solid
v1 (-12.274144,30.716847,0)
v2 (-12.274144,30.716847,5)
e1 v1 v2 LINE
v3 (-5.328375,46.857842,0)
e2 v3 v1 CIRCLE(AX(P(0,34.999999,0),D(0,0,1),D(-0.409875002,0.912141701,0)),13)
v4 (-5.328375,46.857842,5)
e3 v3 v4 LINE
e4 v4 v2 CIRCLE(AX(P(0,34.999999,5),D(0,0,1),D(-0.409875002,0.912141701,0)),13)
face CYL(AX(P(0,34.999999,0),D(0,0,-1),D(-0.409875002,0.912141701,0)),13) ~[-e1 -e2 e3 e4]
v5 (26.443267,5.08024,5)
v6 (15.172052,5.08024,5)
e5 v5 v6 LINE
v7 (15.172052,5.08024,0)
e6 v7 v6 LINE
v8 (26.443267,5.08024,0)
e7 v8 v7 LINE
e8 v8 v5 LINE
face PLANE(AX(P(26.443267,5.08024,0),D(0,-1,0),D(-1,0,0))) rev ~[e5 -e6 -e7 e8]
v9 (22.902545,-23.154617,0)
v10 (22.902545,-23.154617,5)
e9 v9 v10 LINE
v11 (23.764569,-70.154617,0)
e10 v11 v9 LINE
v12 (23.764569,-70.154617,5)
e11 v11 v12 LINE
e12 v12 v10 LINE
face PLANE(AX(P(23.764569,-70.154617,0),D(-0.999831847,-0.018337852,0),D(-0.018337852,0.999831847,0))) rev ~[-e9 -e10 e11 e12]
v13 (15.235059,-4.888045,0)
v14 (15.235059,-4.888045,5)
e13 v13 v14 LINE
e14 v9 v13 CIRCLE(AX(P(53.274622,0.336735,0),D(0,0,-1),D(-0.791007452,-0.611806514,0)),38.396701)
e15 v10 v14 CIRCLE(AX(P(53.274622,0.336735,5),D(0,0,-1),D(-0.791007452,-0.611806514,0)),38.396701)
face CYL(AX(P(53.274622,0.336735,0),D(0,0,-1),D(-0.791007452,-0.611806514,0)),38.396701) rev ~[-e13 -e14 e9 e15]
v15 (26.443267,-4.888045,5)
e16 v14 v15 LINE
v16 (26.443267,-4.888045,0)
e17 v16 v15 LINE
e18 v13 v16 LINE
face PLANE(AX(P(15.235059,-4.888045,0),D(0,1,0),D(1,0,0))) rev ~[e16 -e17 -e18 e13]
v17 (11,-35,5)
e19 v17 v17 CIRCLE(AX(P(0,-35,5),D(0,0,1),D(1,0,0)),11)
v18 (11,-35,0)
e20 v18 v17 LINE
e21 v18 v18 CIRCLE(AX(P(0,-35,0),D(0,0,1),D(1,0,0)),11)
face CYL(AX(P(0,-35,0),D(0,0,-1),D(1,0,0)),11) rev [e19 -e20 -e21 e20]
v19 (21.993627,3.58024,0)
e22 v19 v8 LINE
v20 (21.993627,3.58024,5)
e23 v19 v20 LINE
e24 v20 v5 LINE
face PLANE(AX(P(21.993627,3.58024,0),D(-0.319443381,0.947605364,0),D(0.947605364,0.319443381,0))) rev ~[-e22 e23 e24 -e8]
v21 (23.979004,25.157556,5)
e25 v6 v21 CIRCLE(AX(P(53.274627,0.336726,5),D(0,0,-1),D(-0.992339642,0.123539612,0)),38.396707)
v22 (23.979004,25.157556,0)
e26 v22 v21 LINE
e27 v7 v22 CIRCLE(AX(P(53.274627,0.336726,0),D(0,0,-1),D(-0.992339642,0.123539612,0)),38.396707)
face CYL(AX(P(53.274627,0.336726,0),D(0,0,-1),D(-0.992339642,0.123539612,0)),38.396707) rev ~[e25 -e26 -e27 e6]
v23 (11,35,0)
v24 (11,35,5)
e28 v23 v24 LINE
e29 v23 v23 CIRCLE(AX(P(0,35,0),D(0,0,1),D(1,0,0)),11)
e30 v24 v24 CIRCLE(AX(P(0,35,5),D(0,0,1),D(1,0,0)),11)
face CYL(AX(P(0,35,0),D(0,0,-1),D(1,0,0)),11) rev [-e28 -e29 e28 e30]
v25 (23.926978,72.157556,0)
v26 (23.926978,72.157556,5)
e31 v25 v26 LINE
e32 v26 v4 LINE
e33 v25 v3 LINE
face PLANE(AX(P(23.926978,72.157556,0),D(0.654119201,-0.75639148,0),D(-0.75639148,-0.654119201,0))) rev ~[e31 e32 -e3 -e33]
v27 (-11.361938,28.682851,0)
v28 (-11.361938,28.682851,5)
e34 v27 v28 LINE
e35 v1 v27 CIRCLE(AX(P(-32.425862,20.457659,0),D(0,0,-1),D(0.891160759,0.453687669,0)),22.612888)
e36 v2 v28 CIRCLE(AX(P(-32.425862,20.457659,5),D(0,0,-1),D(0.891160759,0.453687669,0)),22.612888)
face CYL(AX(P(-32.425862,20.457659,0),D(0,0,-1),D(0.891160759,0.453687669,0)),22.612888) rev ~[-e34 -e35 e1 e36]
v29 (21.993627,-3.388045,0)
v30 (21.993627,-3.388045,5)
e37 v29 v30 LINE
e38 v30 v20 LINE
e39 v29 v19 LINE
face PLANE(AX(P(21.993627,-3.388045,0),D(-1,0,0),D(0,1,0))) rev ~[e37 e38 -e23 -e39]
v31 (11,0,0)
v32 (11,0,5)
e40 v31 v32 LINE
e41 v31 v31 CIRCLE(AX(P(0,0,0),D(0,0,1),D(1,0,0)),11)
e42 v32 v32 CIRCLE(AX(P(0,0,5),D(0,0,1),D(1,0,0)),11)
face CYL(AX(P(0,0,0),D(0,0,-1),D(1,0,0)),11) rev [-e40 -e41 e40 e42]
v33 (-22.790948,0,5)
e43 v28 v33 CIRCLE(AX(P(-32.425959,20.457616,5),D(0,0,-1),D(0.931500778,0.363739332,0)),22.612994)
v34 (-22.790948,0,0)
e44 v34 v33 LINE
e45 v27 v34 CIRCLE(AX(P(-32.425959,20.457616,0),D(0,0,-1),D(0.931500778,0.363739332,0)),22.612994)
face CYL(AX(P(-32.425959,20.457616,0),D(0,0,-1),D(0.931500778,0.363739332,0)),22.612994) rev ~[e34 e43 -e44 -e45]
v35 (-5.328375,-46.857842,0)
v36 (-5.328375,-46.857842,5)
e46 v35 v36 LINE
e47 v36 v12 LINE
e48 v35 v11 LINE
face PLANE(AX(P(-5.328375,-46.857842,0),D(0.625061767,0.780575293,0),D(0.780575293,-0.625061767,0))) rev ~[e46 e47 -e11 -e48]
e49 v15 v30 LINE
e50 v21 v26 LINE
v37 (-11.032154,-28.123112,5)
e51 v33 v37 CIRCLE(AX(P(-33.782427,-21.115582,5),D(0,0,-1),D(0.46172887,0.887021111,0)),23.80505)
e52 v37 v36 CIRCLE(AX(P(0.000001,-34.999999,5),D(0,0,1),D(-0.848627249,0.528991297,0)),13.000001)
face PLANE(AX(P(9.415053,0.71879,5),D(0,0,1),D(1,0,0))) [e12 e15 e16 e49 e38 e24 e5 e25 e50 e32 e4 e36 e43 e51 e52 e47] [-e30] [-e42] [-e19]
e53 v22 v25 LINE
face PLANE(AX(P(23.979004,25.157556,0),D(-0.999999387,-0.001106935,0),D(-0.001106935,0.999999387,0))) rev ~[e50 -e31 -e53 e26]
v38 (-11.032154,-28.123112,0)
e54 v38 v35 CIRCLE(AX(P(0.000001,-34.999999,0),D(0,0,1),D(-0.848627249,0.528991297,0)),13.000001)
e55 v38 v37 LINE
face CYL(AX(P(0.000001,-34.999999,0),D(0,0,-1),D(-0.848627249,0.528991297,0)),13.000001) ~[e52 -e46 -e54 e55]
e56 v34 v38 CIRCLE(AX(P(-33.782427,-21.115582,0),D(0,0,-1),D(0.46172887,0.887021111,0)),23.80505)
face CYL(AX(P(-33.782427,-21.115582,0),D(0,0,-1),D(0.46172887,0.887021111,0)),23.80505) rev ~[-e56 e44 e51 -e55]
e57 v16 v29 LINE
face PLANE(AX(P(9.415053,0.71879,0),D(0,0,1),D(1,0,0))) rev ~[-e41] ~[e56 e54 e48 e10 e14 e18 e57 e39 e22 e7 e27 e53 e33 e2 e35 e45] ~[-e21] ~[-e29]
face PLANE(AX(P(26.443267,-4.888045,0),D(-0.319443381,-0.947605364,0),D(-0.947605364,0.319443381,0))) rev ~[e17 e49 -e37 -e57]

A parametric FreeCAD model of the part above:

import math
import FreeCAD as App
import Part
import Sketcher
Q = App.Units.Quantity

doc = App.newDocument("Part")
body = doc.addObject("PartDesign::Body", "Body")

# Sketch on XY plane
sketch1 = body.newObject("Sketcher::SketchObject", "Sketch")
sketch1.AttachmentSupport = (doc.getObject("XY_Plane"), [""])
sketch1.MapMode = "FlatFace"
sketch1.addGeometry(Part.LineSegment(App.Vector(23.926978, 72.157556, 0), App.Vector(-5.328375, 46.857842, 0)), False)
sketch1.addGeometry(Part.ArcOfCircle(Part.Circle(App.Vector(0, 34.999999, 0), App.Vector(0, 0, 1), 13), math.radians(114.196983), math.radians(199.236807)), False)
sketch1.addGeometry(Part.ArcOfCircle(Part.Circle(App.Vector(-32.425862, 20.457659, 0), App.Vector(0, 0, 1), 22.612888), math.radians(21.330008), math.radians(26.980528)), False)
sketch1.addGeometry(Part.ArcOfCircle(Part.Circle(App.Vector(-32.425959, 20.457616, 0), App.Vector(0, 0, 1), 22.612994), math.radians(-64.78077), math.radians(21.33002)), False)
sketch1.addGeometry(Part.ArcOfCircle(Part.Circle(App.Vector(-33.782427, -21.115582, 0), App.Vector(0, 0, 1), 23.80505), math.radians(-17.119859), math.radians(62.501275)), False)
sketch1.addGeometry(Part.ArcOfCircle(Part.Circle(App.Vector(0.000001, -34.999999, 0), App.Vector(0, 0, 1), 13.000001), math.radians(148.062674), math.radians(245.803014)), False)
sketch1.addGeometry(Part.LineSegment(App.Vector(-5.328375, -46.857842, 0), App.Vector(23.764569, -70.154617, 0)), False)
sketch1.addGeometry(Part.LineSegment(App.Vector(23.764569, -70.154617, 0), App.Vector(22.902545, -23.154617, 0)), False)
sketch1.addGeometry(Part.ArcOfCircle(Part.Circle(App.Vector(53.274622, 0.336735, 0), App.Vector(0, 0, 1), 38.396701), math.radians(-172.179291), math.radians(-142.279759)), False)
sketch1.addGeometry(Part.LineSegment(App.Vector(15.235059, -4.888045, 0), App.Vector(26.443267, -4.888045, 0)), False)
sketch1.addGeometry(Part.LineSegment(App.Vector(26.443267, -4.888045, 0), App.Vector(21.993627, -3.388045, 0)), False)
sketch1.addGeometry(Part.LineSegment(App.Vector(21.993627, -3.388045, 0), App.Vector(21.993627, 3.58024, 0)), False)
sketch1.addGeometry(Part.LineSegment(App.Vector(21.993627, 3.58024, 0), App.Vector(26.443267, 5.08024, 0)), False)
sketch1.addGeometry(Part.LineSegment(App.Vector(26.443267, 5.08024, 0), App.Vector(15.172052, 5.08024, 0)), False)
sketch1.addGeometry(Part.ArcOfCircle(Part.Circle(App.Vector(53.274627, 0.336726, 0), App.Vector(0, 0, 1), 38.396707), math.radians(139.726932), math.radians(172.903572)), False)
sketch1.addGeometry(Part.LineSegment(App.Vector(23.979004, 25.157556, 0), App.Vector(23.926978, 72.157556, 0)), False)
sketch1.addGeometry(Part.Circle(App.Vector(0, -35, 0), App.Vector(0, 0, 1), 11), False)
sketch1.addGeometry(Part.Circle(App.Vector(0, 0, 0), App.Vector(0, 0, 1), 11), False)
sketch1.addGeometry(Part.Circle(App.Vector(0, 35, 0), App.Vector(0, 0, 1), 11), False)
sketch1.addConstraint(Sketcher.Constraint("Coincident", 0, 2, 1, 1))
sketch1.addConstraint(Sketcher.Constraint("Coincident", 1, 2, 2, 2))
sketch1.addConstraint(Sketcher.Constraint("Coincident", 2, 1, 3, 2))
sketch1.addConstraint(Sketcher.Constraint("Coincident", 3, 1, 4, 2))
sketch1.addConstraint(Sketcher.Constraint("Coincident", 4, 1, 5, 1))
sketch1.addConstraint(Sketcher.Constraint("Coincident", 5, 2, 6, 1))
sketch1.addConstraint(Sketcher.Constraint("Coincident", 6, 2, 7, 1))
sketch1.addConstraint(Sketcher.Constraint("Coincident", 7, 2, 8, 2))
sketch1.addConstraint(Sketcher.Constraint("Coincident", 8, 1, 9, 1))
sketch1.addConstraint(Sketcher.Constraint("Coincident", 9, 2, 10, 1))
sketch1.addConstraint(Sketcher.Constraint("Coincident", 10, 2, 11, 1))
sketch1.addConstraint(Sketcher.Constraint("Coincident", 11, 2, 12, 1))
sketch1.addConstraint(Sketcher.Constraint("Coincident", 12, 2, 13, 1))
sketch1.addConstraint(Sketcher.Constraint("Coincident", 13, 2, 14, 2))
sketch1.addConstraint(Sketcher.Constraint("Coincident", 14, 1, 15, 1))
sketch1.addConstraint(Sketcher.Constraint("Coincident", 15, 2, 0, 1))
sketch1.addConstraint(Sketcher.Constraint("Horizontal", 9))
sketch1.addConstraint(Sketcher.Constraint("Vertical", 11))
sketch1.addConstraint(Sketcher.Constraint("Horizontal", 13))
sketch1.addConstraint(Sketcher.Constraint("Coincident", 17, 3, -1, 1))
sketch1.addConstraint(Sketcher.Constraint("Coincident", 16, 3, 5, 3))
sketch1.addConstraint(Sketcher.Constraint("Coincident", 18, 3, 1, 3))
sketch1.addConstraint(Sketcher.Constraint("PointOnObject", 1, 3, -2))
sketch1.addConstraint(Sketcher.Constraint("PointOnObject", 5, 3, -2))
sketch1.addConstraint(Sketcher.Constraint("PointOnObject", 3, 1, -1))
sketch1.addConstraint(Sketcher.Constraint("Diameter", 16, Q("22 mm")))
sketch1.addConstraint(Sketcher.Constraint("Diameter", 17, Q("22 mm")))
sketch1.addConstraint(Sketcher.Constraint("Diameter", 18, Q("22 mm")))
sketch1.addConstraint(Sketcher.Constraint("Radius", 1, Q("13 mm")))
sketch1.addConstraint(Sketcher.Constraint("Radius", 5, Q("13.000001 mm")))
sketch1.addConstraint(Sketcher.Constraint("DistanceY", -1, 1, 1, 3, Q("34.999999 mm")))
sketch1.addConstraint(Sketcher.Constraint("DistanceY", 5, 3, -1, 1, Q("34.999999 mm")))
sketch1.addConstraint(Sketcher.Constraint("DistanceY", 14, 1, 15, 2, Q("47 mm")))
sketch1.addConstraint(Sketcher.Constraint("Radius", 8, Q("38.396701 mm")))
sketch1.addConstraint(Sketcher.Constraint("DistanceY", 9, 2, 10, 2, Q("1.5 mm")))
sketch1.addConstraint(Sketcher.Constraint("DistanceY", 11, 2, 12, 2, Q("1.5 mm")))
sketch1.addConstraint(Sketcher.Constraint("Radius", 4, Q("23.80505 mm")))
sketch1.addConstraint(Sketcher.Constraint("Radius", 2, Q("22.612888 mm")))
sketch1.addConstraint(Sketcher.Constraint("Radius", 3, Q("22.612994 mm")))
sketch1.addConstraint(Sketcher.Constraint("Radius", 14, Q("38.396707 mm")))
sketch1.addConstraint(Sketcher.Constraint("DistanceX", 4, 1, 7, 2, Q("33.934699 mm")))
sketch1.addConstraint(Sketcher.Constraint("Distance", 0, Q("38.677528 mm")))
sketch1.addConstraint(Sketcher.Constraint("DistanceX", 9, 1, 9, 2, Q("11.208208 mm")))
sketch1.addConstraint(Sketcher.Constraint("DistanceX", 13, 2, 13, 1, Q("11.271215 mm")))
sketch1.addConstraint(Sketcher.Constraint("DistanceY", 11, 1, 11, 2, Q("6.968285 mm")))
sketch1.addConstraint(Sketcher.Constraint("DistanceY", -1, 1, 2, 3, Q("20.457659 mm")))
sketch1.addConstraint(Sketcher.Constraint("DistanceX", 3, 3, -1, 1, Q("32.425959 mm")))
sketch1.addConstraint(Sketcher.Constraint("DistanceY", 4, 3, -1, 1, Q("21.115582 mm")))
sketch1.addConstraint(Sketcher.Constraint("DistanceX", -1, 1, 8, 3, Q("53.274622 mm")))
sketch1.addConstraint(Sketcher.Constraint("DistanceY", -1, 1, 0, 2, Q("46.857842 mm")))
sketch1.addConstraint(Sketcher.Constraint("DistanceY", -1, 1, 2, 1, Q("28.682851 mm")))
sketch1.addConstraint(Sketcher.Constraint("DistanceX", 3, 1, -1, 1, Q("22.790948 mm")))
sketch1.addConstraint(Sketcher.Constraint("DistanceX", -1, 1, 6, 2, Q("23.764569 mm")))
sketch1.addConstraint(Sketcher.Constraint("DistanceX", -1, 1, 8, 1, Q("15.235059 mm")))
sketch1.addConstraint(Sketcher.Constraint("DistanceY", -1, 1, 11, 2, Q("3.58024 mm")))
sketch1.addConstraint(Sketcher.Constraint("DistanceX", 2, 3, 14, 3, Q("85.700489 mm")))
sketch1.addConstraint(Sketcher.Constraint("DistanceY", 14, 3, 3, 3, Q("20.12089 mm")))
sketch1.addConstraint(Sketcher.Constraint("DistanceX", 4, 1, 5, 2, Q("5.703779 mm")))
sketch1.addConstraint(Sketcher.Constraint("DistanceX", 10, 2, 9, 2, Q("4.44964 mm")))
sketch1.addConstraint(Sketcher.Constraint("DistanceX", 1, 2, 15, 2, Q("36.201122 mm")))
sketch1.addConstraint(Sketcher.Constraint("Distance", 6, Q("37.271157 mm")))
pad1 = body.newObject("PartDesign::Pad", "Pad")
pad1.Profile = sketch1
pad1.Length = 5

doc.recompute()
